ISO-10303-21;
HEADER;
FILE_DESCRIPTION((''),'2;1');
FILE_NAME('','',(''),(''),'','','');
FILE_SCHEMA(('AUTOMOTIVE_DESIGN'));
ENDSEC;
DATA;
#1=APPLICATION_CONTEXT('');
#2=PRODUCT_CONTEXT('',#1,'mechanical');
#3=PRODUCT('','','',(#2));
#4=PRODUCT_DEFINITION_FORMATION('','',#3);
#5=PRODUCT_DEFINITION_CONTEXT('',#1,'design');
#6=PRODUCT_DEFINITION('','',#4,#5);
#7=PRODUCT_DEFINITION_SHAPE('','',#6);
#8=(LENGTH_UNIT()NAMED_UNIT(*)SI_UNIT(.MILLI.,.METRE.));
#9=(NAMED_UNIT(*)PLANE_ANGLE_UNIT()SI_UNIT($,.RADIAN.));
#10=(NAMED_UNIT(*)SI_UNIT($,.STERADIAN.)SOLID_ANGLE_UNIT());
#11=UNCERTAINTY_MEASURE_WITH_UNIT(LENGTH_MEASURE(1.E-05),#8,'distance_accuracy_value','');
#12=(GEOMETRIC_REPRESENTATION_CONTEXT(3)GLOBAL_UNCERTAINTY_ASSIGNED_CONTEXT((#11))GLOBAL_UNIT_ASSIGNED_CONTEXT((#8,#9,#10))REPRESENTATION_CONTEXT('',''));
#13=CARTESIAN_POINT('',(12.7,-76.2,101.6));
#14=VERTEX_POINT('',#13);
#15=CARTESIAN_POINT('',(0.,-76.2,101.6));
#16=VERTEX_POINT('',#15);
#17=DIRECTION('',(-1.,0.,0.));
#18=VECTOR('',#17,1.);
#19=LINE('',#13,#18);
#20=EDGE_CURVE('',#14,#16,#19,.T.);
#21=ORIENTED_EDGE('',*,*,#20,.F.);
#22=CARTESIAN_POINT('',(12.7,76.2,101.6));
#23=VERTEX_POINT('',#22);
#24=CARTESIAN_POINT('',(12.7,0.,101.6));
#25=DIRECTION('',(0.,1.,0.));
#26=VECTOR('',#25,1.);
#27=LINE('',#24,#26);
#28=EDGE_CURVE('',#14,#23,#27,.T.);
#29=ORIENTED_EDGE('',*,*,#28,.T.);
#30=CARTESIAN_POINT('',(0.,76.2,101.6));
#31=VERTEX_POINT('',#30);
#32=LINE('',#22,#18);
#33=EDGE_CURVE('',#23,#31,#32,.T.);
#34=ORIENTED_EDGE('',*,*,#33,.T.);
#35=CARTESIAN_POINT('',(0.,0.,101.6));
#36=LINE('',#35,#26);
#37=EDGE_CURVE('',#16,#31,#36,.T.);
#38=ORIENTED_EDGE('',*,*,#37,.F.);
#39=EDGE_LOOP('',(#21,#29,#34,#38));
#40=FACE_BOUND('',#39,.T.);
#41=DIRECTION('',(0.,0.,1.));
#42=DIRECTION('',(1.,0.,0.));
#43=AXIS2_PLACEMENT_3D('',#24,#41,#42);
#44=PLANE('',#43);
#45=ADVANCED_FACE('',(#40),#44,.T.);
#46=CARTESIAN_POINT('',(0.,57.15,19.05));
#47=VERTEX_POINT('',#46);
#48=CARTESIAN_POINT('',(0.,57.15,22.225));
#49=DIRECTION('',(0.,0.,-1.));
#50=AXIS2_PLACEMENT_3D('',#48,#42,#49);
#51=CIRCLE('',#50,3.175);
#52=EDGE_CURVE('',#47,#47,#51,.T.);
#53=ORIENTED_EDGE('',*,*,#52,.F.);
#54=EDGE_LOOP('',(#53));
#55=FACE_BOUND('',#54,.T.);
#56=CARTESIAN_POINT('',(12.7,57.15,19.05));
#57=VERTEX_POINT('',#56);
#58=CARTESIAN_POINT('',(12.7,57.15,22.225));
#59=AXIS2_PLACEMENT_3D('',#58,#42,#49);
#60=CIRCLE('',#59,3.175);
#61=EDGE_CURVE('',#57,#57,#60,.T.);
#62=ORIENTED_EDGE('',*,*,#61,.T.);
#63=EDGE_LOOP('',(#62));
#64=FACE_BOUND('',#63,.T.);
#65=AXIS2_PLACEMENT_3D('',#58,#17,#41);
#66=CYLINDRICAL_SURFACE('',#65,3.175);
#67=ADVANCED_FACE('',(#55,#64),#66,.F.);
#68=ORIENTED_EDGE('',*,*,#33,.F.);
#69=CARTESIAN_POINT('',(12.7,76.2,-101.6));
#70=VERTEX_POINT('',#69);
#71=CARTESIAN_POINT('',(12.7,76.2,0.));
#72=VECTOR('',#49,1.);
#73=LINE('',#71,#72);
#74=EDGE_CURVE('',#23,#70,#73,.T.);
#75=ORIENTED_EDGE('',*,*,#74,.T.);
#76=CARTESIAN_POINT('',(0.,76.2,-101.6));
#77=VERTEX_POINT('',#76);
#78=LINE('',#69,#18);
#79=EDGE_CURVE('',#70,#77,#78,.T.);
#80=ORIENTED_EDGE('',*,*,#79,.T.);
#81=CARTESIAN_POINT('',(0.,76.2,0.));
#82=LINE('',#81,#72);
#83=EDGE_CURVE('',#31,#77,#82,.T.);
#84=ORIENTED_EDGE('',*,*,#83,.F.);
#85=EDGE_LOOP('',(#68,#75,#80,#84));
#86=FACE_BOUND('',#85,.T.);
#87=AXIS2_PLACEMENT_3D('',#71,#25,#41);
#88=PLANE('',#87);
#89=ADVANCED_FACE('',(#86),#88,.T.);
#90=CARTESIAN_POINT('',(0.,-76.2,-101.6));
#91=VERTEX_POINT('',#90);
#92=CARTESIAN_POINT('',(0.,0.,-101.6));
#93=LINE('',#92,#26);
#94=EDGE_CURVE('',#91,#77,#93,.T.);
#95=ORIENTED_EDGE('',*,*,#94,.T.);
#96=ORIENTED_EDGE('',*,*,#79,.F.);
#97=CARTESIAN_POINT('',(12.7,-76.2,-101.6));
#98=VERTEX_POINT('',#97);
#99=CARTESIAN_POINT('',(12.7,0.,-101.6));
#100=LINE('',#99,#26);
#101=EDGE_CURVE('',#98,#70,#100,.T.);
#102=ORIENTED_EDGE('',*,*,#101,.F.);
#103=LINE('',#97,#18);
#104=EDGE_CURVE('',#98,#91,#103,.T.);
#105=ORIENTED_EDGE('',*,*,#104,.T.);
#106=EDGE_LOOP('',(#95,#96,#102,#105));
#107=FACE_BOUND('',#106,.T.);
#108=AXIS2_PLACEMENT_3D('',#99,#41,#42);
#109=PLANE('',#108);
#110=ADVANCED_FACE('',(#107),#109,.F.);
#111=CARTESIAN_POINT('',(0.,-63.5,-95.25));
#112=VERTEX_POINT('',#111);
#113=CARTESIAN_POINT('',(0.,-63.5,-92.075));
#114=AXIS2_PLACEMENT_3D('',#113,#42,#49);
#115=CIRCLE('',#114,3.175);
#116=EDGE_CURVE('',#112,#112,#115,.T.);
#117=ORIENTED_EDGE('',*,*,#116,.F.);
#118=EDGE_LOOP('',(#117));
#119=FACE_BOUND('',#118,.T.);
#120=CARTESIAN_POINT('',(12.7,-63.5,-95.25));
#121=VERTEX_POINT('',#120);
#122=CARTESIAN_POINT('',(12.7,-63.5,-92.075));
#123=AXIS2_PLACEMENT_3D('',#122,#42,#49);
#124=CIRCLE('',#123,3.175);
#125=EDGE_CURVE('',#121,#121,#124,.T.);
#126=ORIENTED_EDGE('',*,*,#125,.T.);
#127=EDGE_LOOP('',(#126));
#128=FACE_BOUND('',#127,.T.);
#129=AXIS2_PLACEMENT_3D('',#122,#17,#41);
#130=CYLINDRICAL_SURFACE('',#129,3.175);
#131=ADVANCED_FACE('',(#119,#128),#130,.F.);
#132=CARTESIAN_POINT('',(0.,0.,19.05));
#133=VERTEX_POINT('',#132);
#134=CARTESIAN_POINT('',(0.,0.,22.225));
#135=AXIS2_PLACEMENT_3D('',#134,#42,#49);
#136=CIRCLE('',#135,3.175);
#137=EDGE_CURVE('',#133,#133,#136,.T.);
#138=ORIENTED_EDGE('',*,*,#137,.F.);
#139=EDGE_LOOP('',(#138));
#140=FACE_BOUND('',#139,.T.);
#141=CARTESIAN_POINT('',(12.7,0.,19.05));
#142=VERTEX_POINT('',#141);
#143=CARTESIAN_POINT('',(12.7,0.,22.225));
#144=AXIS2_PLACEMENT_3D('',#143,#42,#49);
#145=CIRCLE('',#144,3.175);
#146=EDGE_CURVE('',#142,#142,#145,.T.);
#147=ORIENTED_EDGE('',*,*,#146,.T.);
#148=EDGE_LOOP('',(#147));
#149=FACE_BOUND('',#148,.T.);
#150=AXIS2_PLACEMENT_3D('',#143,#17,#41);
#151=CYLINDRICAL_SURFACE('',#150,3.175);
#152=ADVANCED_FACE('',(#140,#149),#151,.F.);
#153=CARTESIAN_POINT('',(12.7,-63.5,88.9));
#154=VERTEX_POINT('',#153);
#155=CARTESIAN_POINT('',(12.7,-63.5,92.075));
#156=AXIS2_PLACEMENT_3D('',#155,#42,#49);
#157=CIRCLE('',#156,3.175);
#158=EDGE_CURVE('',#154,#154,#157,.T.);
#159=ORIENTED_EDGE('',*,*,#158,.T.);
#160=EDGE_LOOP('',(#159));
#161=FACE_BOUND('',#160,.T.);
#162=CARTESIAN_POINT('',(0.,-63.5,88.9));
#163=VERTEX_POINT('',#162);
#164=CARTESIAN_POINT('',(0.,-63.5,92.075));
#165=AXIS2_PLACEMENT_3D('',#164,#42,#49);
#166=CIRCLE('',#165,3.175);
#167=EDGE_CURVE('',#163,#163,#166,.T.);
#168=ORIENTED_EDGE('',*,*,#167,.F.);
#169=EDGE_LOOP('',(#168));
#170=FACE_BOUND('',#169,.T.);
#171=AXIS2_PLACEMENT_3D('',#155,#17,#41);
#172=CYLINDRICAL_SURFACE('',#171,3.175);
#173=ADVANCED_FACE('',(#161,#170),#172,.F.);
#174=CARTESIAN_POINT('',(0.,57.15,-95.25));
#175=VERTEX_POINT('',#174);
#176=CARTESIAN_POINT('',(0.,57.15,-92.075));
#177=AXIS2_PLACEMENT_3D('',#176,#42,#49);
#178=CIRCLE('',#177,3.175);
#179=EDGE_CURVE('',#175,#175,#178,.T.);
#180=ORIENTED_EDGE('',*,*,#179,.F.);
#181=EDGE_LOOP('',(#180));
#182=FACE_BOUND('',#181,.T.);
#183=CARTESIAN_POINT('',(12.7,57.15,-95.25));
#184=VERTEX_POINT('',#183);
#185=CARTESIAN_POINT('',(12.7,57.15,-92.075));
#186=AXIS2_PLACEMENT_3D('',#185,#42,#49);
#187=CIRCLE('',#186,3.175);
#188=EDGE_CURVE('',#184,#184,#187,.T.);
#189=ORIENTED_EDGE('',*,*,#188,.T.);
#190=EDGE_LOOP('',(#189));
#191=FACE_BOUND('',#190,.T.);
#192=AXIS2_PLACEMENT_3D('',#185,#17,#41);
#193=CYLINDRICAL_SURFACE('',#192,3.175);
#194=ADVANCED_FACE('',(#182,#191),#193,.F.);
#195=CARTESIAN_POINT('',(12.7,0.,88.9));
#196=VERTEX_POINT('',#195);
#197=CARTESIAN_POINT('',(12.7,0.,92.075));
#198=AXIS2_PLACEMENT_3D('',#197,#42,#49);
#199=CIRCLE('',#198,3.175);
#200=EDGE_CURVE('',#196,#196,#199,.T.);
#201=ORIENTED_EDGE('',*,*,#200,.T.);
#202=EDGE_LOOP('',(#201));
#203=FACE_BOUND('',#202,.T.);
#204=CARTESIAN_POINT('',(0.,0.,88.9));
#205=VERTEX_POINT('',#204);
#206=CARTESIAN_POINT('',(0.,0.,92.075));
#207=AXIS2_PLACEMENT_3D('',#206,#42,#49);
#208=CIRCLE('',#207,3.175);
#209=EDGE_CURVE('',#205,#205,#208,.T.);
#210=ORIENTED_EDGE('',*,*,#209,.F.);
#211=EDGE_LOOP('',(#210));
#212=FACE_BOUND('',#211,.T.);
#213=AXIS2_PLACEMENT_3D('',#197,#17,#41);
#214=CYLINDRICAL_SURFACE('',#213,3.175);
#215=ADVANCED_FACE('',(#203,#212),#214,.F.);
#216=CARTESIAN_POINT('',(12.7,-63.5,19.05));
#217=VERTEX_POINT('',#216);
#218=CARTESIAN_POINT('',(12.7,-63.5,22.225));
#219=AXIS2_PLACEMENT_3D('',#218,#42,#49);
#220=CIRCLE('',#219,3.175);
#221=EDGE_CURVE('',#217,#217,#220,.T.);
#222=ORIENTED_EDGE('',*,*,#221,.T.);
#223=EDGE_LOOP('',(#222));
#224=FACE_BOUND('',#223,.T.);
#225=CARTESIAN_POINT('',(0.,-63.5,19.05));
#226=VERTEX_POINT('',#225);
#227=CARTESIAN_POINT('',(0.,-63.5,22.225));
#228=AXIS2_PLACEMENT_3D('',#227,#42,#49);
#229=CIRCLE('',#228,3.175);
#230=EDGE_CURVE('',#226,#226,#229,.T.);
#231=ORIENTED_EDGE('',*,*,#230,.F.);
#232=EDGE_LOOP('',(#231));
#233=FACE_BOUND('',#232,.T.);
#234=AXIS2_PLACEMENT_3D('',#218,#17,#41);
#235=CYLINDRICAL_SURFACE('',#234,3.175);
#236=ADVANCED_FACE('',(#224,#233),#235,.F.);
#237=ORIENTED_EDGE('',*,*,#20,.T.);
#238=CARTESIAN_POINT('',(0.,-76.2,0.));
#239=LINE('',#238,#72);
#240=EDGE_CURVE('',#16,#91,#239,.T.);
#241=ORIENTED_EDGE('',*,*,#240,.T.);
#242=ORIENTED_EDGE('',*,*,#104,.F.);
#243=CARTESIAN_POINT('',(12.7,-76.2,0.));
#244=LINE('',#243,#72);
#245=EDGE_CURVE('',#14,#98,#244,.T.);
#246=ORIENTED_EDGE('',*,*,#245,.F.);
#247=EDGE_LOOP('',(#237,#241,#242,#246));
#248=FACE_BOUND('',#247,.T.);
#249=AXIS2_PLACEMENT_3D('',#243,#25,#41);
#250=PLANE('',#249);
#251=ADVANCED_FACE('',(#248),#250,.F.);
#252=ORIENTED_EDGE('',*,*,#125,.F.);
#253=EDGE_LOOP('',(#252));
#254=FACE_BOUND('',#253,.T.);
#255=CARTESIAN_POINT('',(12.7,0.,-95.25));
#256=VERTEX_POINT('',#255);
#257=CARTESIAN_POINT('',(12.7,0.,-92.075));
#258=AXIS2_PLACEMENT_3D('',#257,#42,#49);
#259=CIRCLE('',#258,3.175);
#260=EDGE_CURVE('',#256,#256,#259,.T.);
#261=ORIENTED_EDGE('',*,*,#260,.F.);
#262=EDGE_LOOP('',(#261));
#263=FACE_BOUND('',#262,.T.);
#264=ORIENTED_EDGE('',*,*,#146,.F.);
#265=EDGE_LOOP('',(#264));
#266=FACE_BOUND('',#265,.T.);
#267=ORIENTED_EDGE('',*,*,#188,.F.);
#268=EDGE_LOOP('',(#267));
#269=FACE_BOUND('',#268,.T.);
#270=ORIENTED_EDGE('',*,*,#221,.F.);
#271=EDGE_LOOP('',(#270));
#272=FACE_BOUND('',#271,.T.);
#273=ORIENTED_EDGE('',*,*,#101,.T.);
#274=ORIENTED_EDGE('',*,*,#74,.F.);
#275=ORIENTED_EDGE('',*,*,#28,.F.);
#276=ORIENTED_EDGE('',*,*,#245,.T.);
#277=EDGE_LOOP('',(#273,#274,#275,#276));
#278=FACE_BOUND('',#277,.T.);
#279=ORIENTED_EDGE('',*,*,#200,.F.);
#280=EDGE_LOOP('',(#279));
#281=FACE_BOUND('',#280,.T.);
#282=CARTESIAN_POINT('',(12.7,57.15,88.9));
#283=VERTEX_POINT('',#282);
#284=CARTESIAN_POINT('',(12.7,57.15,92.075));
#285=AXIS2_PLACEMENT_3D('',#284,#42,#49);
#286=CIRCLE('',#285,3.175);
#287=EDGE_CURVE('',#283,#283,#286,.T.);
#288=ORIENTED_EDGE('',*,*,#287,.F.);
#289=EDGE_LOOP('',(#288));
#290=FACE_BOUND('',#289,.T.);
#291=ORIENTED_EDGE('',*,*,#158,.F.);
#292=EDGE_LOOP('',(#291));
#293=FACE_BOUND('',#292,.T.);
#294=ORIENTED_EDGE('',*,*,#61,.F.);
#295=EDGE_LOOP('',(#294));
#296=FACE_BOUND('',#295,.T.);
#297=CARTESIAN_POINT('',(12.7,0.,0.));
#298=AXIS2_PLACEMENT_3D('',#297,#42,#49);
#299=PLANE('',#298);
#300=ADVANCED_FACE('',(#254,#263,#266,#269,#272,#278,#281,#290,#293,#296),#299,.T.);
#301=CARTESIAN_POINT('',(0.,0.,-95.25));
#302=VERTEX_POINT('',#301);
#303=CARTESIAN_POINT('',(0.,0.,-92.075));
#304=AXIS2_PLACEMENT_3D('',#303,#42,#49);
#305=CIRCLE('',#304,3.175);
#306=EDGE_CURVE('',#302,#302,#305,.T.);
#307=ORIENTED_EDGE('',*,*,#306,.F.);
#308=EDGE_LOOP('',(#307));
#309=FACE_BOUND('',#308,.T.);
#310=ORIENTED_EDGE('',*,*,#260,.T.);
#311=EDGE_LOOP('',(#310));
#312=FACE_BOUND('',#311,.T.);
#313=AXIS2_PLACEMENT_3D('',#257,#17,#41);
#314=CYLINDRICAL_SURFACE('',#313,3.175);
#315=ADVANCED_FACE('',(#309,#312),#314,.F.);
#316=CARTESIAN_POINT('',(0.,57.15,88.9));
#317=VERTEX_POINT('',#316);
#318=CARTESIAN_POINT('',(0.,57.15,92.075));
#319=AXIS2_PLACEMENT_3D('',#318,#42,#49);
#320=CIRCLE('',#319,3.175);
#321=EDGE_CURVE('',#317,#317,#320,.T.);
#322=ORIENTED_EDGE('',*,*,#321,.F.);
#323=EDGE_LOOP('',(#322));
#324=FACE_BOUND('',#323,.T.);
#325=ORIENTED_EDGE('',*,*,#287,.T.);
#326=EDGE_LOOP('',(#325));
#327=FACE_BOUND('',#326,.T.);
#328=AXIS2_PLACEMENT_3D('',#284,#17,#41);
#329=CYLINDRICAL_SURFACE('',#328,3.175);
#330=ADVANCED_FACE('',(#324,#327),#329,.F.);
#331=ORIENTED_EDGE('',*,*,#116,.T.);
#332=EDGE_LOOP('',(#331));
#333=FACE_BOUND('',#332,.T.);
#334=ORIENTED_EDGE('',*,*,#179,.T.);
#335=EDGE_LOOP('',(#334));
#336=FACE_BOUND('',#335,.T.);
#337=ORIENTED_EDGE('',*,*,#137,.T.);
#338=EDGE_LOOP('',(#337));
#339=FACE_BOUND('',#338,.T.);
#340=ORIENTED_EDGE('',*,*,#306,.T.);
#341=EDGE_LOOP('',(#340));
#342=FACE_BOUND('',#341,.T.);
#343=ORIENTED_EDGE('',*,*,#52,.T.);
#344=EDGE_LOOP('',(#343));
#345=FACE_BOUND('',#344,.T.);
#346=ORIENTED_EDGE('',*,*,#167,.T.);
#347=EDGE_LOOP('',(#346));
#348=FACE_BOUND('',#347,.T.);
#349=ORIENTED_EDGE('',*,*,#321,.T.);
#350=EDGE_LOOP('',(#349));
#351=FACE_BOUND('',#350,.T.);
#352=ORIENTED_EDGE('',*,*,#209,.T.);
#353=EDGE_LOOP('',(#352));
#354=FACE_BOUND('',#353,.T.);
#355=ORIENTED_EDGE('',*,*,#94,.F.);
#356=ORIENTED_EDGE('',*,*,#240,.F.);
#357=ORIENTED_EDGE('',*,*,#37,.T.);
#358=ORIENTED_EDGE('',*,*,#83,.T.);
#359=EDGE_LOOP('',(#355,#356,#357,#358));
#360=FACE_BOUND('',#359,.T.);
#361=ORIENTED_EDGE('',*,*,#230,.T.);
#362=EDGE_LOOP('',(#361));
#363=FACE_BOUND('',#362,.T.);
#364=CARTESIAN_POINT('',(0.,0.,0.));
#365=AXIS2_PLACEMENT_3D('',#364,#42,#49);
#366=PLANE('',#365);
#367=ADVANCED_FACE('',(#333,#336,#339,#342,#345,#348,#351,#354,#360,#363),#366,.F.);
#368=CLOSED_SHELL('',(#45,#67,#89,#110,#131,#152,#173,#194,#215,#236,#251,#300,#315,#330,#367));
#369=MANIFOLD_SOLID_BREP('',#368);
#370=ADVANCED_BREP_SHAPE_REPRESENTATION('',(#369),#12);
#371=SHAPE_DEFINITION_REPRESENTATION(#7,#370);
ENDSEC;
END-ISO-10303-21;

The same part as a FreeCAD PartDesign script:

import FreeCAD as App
import Part
import Sketcher

V = App.Vector
Q = App.Units.Quantity


def add_polygon(sketch, points):
    """Adds a closed chain of lines whose ends are joined by coincident constraints."""
    first, n = sketch.GeometryCount, len(points)
    for a, b in zip(points, points[1:] + points[:1]):
        sketch.addGeometry(Part.LineSegment(App.Vector(*a, 0), App.Vector(*b, 0)), False)
    for i in range(n):
        sketch.addConstraint(Sketcher.Constraint("Coincident", first + i, 2, first + (i + 1) % n, 1))

doc = App.newDocument("Part")
body = doc.addObject("PartDesign::Body", "Body")

sketch1 = body.newObject("Sketcher::SketchObject", "Sketch")
sketch1.AttachmentSupport = (doc.getObject("YZ_Plane"), [""])
sketch1.MapMode = "FlatFace"
add_polygon(sketch1, [(76.2, 101.6), (-76.2, 101.6), (-76.2, -101.6), (76.2, -101.6)])
sketch1.addGeometry(Part.Circle(V(-63.5, 92.075, 0), V(0, 0, 1), 3.175), False)
sketch1.addGeometry(Part.Circle(V(-63.5, 22.225, 0), V(0, 0, 1), 3.175), False)
sketch1.addGeometry(Part.Circle(V(-63.5, -92.075, 0), V(0, 0, 1), 3.175), False)
sketch1.addGeometry(Part.Circle(V(0, 92.075, 0), V(0, 0, 1), 3.175), False)
sketch1.addGeometry(Part.Circle(V(0, 22.225, 0), V(0, 0, 1), 3.175), False)
sketch1.addGeometry(Part.Circle(V(57.15, 92.075, 0), V(0, 0, 1), 3.175), False)
sketch1.addGeometry(Part.Circle(V(57.15, 22.225, 0), V(0, 0, 1), 3.175), False)
sketch1.addGeometry(Part.Circle(V(0, -92.075, 0), V(0, 0, 1), 3.175), False)
sketch1.addGeometry(Part.Circle(V(57.15, -92.075, 0), V(0, 0, 1), 3.175), False)
sketch1.addConstraint(Sketcher.Constraint("Horizontal", 0))
sketch1.addConstraint(Sketcher.Constraint("Vertical", 1))
sketch1.addConstraint(Sketcher.Constraint("Horizontal", 2))
sketch1.addConstraint(Sketcher.Constraint("Vertical", 3))
sketch1.addConstraint(Sketcher.Constraint("Equal", 4, 5))
sketch1.addConstraint(Sketcher.Constraint("Equal", 5, 6))
sketch1.addConstraint(Sketcher.Constraint("Equal", 6, 7))
sketch1.addConstraint(Sketcher.Constraint("Equal", 7, 8))
sketch1.addConstraint(Sketcher.Constraint("Equal", 8, 9))
sketch1.addConstraint(Sketcher.Constraint("Equal", 9, 10))
sketch1.addConstraint(Sketcher.Constraint("Equal", 10, 11))
sketch1.addConstraint(Sketcher.Constraint("Equal", 11, 12))
sketch1.addConstraint(Sketcher.Constraint("Symmetric", 7, 3, 11, 3, -1, 1))
sketch1.addConstraint(Sketcher.Constraint("Symmetric", 0, 2, 2, 2, -1, 1))
sketch1.addConstraint(Sketcher.Constraint("Symmetric", 4, 3, 6, 3, -1))
sketch1.addConstraint(Sketcher.Constraint("Symmetric", 9, 3, 12, 3, -1))
sketch1.addConstraint(Sketcher.Constraint("PointOnObject", 7, 3, -2))
sketch1.addConstraint(Sketcher.Constraint("PointOnObject", 8, 3, -2))
sketch1.addConstraint(Sketcher.Constraint("Horizontal", 4, 3, 7, 3))
sketch1.addConstraint(Sketcher.Constraint("Horizontal", 5, 3, 8, 3))
sketch1.addConstraint(Sketcher.Constraint("Horizontal", 7, 3, 9, 3))
sketch1.addConstraint(Sketcher.Constraint("Horizontal", 8, 3, 10, 3))
sketch1.addConstraint(Sketcher.Constraint("Vertical", 4, 3, 5, 3))
sketch1.addConstraint(Sketcher.Constraint("Vertical", 9, 3, 10, 3))
sketch1.addConstraint(Sketcher.Constraint("Diameter", 4, Q("0.25 in")))
sketch1.addConstraint(Sketcher.Constraint("DistanceX", 0, 2, 0, 1, Q("6 in")))
sketch1.addConstraint(Sketcher.Constraint("DistanceY", 1, 2, 1, 1, Q("8 in")))
sketch1.addConstraint(Sketcher.Constraint("DistanceX", 4, 3, -1, 1, Q("2.5 in")))
sketch1.addConstraint(Sketcher.Constraint("DistanceY", 6, 3, 5, 3, Q("4.5 in")))
sketch1.addConstraint(Sketcher.Constraint("DistanceX", -1, 1, 9, 3, Q("2.25 in")))
sketch1.addConstraint(Sketcher.Constraint("DistanceY", 5, 3, 4, 3, Q("2.75 in")))
pad1 = body.newObject("PartDesign::Pad", "Pad")
pad1.Profile = sketch1
pad1.Length = Q("0.5 in")

doc.recompute()
